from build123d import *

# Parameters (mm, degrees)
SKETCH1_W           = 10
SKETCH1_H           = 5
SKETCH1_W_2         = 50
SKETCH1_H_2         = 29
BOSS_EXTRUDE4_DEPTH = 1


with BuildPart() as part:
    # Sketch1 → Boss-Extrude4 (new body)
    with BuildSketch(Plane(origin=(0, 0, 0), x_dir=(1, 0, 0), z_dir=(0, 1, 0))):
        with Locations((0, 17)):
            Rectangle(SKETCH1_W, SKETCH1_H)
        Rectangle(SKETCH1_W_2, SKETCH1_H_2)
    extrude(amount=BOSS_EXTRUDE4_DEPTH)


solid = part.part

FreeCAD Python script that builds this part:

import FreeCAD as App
import Part
import Sketcher

V = App.Vector

doc = App.newDocument("Part")
body = doc.addObject("PartDesign::Body", "Body")

sketch1 = doc.addObject("Sketcher::SketchObject", "Sketch")
body.addObject(sketch1)
sketch1.AttachmentSupport = (doc.XZ_Plane, [""])
sketch1.MapMode = "FlatFace"
sketch1.addGeometry(Part.LineSegment(V(-5, -20, 0), V(-5, -14, 0)), False)
sketch1.addGeometry(Part.LineSegment(V(-5, -14, 0), V(-25, -14, 0)), False)
sketch1.addGeometry(Part.LineSegment(V(-25, -14, 0), V(-25, 14, 0)), False)
sketch1.addGeometry(Part.LineSegment(V(-25, 14, 0), V(25, 14, 0)), False)
sketch1.addGeometry(Part.LineSegment(V(25, 14, 0), V(25, -14, 0)), False)
sketch1.addGeometry(Part.LineSegment(V(25, -14, 0), V(5, -14, 0)), False)
sketch1.addGeometry(Part.LineSegment(V(5, -14, 0), V(5, -20, 0)), False)
sketch1.addGeometry(Part.LineSegment(V(5, -20, 0), V(-5, -20, 0)), False)
sketch1.addConstraint(Sketcher.Constraint("Coincident", 0, 2, 1, 1))
sketch1.addConstraint(Sketcher.Constraint("Coincident", 1, 2, 2, 1))
sketch1.addConstraint(Sketcher.Constraint("Coincident", 2, 2, 3, 1))
sketch1.addConstraint(Sketcher.Constraint("Coincident", 3, 2, 4, 1))
sketch1.addConstraint(Sketcher.Constraint("Coincident", 4, 2, 5, 1))
sketch1.addConstraint(Sketcher.Constraint("Coincident", 5, 2, 6, 1))
sketch1.addConstraint(Sketcher.Constraint("Coincident", 6, 2, 7, 1))
sketch1.addConstraint(Sketcher.Constraint("Coincident", 7, 2, 0, 1))
sketch1.addConstraint(Sketcher.Constraint("Vertical", 0))
sketch1.addConstraint(Sketcher.Constraint("Horizontal", 1))
sketch1.addConstraint(Sketcher.Constraint("Vertical", 2))
sketch1.addConstraint(Sketcher.Constraint("Horizontal", 3))
sketch1.addConstraint(Sketcher.Constraint("Vertical", 4))
sketch1.addConstraint(Sketcher.Constraint("Horizontal", 5))
sketch1.addConstraint(Sketcher.Constraint("Vertical", 6))
sketch1.addConstraint(Sketcher.Constraint("Horizontal", 7))
sketch1.addConstraint(Sketcher.Constraint("Symmetric", 1, 2, 3, 2, -1, 1))
sketch1.addConstraint(Sketcher.Constraint("Symmetric", 0, 2, 5, 2, -2))
sketch1.addConstraint(Sketcher.Constraint("DistanceX", 1, 2, 1, 1, 20.0))
sketch1.addConstraint(Sketcher.Constraint("DistanceX", 3, 1, 3, 2, 50.0))
sketch1.addConstraint(Sketcher.Constraint("DistanceY", 0, 1, 0, 2, 5.0))
sketch1.addConstraint(Sketcher.Constraint("DistanceY", 2, 1, 2, 2, 29.0))
pad1 = doc.addObject("PartDesign::Pad", "Pad")
body.addObject(pad1)
pad1.Profile = sketch1
pad1.Length = 1
pad1.Reversed = True

doc.recompute()
